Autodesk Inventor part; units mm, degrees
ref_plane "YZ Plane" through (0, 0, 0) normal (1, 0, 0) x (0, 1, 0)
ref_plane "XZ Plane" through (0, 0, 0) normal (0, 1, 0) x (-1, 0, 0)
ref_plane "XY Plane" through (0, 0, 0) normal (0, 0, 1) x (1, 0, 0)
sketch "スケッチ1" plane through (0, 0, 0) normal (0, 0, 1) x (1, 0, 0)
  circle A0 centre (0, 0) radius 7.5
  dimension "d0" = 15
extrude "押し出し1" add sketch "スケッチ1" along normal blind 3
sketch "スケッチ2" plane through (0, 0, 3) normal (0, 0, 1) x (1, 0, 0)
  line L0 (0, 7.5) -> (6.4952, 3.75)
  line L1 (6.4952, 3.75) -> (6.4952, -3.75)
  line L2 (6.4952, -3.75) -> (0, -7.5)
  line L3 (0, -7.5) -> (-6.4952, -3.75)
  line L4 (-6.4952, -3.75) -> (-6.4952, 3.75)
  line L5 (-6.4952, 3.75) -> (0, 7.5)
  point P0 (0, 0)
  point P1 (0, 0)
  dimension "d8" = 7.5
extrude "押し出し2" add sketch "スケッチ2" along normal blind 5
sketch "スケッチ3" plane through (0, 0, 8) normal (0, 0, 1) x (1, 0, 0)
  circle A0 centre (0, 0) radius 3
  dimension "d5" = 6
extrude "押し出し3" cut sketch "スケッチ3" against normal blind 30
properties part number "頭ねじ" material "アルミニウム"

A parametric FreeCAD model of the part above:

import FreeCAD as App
import Part
import Sketcher
Q = App.Units.Quantity


def add_polygon(sketch, points):
    """Adds a closed chain of lines whose ends are joined by coincident constraints."""
    first, n = sketch.GeometryCount, len(points)
    for a, b in zip(points, points[1:] + points[:1]):
        sketch.addGeometry(Part.LineSegment(App.Vector(*a, 0), App.Vector(*b, 0)), False)
    for i in range(n):
        sketch.addConstraint(Sketcher.Constraint("Coincident", first + i, 2, first + (i + 1) % n, 1))

doc = App.newDocument("Part")
body = doc.addObject("PartDesign::Body", "Body")

# Sketch on XY plane
sketch1 = body.newObject("Sketcher::SketchObject", "Sketch")
sketch1.AttachmentSupport = (doc.getObject("XY_Plane"), [""])
sketch1.MapMode = "FlatFace"
sketch1.addGeometry(Part.Circle(App.Vector(0, 0, 0), App.Vector(0, 0, 1), 8), False)
sketch1.addConstraint([
    Sketcher.Constraint("Coincident", 0, 3, -1, 1),
    Sketcher.Constraint("Diameter", 0, Q("15 mm")),
])
pad1 = body.newObject("PartDesign::Pad", "Pad")
pad1.Profile = sketch1
pad1.Length = 3

# Sketch on XY plane
sketch2 = body.newObject("Sketcher::SketchObject", "Sketch001")
sketch2.AttachmentSupport = (doc.getObject("XY_Plane"), [""])
sketch2.MapMode = "FlatFace"
sketch2.AttachmentOffset = App.Placement(App.Vector(0, 0, 3), App.Rotation())
add_polygon(sketch2, [(6, 4), (0, 8), (-6, 4), (-6, -4), (0, -8), (6, -4)])  # lines 0-5
sketch2.addConstraint([
    Sketcher.Constraint("Vertical", 2),
    Sketcher.Constraint("Vertical", 5),
    Sketcher.Constraint("Symmetric", 0, 2, 3, 2, -1, 1),
    Sketcher.Constraint("Symmetric", 1, 2, 4, 2, -1, 1),
    Sketcher.Constraint("PointOnObject", 0, 2, -2),
    Sketcher.Constraint("Parallel", 0, 3),
    Sketcher.Constraint("Horizontal", 2, 2, 4, 2),
    Sketcher.Constraint("DistanceY", 2, 2, 2, 1, Q("7.5 mm")),
    Sketcher.Constraint("Distance", 0, Q("7.5 mm")),
    Sketcher.Constraint("DistanceY", -1, 1, 0, 2, Q("7.5 mm")),
])
pad2 = body.newObject("PartDesign::Pad", "Pad001")
pad2.Profile = sketch2
pad2.Length = 5

# Sketch on XY plane
sketch3 = body.newObject("Sketcher::SketchObject", "Sketch002")
sketch3.AttachmentSupport = (doc.getObject("XY_Plane"), [""])
sketch3.MapMode = "FlatFace"
sketch3.AttachmentOffset = App.Placement(App.Vector(0, 0, 8), App.Rotation())
sketch3.addGeometry(Part.Circle(App.Vector(0, 0, 0), App.Vector(0, 0, 1), 3), False)
sketch3.addConstraint([
    Sketcher.Constraint("Coincident", 0, 3, -1, 1),
    Sketcher.Constraint("Diameter", 0, Q("6 mm")),
])
pocket1 = body.newObject("PartDesign::Pocket", "Pocket")
pocket1.Profile = sketch3
pocket1.Length = 30

doc.recompute()
